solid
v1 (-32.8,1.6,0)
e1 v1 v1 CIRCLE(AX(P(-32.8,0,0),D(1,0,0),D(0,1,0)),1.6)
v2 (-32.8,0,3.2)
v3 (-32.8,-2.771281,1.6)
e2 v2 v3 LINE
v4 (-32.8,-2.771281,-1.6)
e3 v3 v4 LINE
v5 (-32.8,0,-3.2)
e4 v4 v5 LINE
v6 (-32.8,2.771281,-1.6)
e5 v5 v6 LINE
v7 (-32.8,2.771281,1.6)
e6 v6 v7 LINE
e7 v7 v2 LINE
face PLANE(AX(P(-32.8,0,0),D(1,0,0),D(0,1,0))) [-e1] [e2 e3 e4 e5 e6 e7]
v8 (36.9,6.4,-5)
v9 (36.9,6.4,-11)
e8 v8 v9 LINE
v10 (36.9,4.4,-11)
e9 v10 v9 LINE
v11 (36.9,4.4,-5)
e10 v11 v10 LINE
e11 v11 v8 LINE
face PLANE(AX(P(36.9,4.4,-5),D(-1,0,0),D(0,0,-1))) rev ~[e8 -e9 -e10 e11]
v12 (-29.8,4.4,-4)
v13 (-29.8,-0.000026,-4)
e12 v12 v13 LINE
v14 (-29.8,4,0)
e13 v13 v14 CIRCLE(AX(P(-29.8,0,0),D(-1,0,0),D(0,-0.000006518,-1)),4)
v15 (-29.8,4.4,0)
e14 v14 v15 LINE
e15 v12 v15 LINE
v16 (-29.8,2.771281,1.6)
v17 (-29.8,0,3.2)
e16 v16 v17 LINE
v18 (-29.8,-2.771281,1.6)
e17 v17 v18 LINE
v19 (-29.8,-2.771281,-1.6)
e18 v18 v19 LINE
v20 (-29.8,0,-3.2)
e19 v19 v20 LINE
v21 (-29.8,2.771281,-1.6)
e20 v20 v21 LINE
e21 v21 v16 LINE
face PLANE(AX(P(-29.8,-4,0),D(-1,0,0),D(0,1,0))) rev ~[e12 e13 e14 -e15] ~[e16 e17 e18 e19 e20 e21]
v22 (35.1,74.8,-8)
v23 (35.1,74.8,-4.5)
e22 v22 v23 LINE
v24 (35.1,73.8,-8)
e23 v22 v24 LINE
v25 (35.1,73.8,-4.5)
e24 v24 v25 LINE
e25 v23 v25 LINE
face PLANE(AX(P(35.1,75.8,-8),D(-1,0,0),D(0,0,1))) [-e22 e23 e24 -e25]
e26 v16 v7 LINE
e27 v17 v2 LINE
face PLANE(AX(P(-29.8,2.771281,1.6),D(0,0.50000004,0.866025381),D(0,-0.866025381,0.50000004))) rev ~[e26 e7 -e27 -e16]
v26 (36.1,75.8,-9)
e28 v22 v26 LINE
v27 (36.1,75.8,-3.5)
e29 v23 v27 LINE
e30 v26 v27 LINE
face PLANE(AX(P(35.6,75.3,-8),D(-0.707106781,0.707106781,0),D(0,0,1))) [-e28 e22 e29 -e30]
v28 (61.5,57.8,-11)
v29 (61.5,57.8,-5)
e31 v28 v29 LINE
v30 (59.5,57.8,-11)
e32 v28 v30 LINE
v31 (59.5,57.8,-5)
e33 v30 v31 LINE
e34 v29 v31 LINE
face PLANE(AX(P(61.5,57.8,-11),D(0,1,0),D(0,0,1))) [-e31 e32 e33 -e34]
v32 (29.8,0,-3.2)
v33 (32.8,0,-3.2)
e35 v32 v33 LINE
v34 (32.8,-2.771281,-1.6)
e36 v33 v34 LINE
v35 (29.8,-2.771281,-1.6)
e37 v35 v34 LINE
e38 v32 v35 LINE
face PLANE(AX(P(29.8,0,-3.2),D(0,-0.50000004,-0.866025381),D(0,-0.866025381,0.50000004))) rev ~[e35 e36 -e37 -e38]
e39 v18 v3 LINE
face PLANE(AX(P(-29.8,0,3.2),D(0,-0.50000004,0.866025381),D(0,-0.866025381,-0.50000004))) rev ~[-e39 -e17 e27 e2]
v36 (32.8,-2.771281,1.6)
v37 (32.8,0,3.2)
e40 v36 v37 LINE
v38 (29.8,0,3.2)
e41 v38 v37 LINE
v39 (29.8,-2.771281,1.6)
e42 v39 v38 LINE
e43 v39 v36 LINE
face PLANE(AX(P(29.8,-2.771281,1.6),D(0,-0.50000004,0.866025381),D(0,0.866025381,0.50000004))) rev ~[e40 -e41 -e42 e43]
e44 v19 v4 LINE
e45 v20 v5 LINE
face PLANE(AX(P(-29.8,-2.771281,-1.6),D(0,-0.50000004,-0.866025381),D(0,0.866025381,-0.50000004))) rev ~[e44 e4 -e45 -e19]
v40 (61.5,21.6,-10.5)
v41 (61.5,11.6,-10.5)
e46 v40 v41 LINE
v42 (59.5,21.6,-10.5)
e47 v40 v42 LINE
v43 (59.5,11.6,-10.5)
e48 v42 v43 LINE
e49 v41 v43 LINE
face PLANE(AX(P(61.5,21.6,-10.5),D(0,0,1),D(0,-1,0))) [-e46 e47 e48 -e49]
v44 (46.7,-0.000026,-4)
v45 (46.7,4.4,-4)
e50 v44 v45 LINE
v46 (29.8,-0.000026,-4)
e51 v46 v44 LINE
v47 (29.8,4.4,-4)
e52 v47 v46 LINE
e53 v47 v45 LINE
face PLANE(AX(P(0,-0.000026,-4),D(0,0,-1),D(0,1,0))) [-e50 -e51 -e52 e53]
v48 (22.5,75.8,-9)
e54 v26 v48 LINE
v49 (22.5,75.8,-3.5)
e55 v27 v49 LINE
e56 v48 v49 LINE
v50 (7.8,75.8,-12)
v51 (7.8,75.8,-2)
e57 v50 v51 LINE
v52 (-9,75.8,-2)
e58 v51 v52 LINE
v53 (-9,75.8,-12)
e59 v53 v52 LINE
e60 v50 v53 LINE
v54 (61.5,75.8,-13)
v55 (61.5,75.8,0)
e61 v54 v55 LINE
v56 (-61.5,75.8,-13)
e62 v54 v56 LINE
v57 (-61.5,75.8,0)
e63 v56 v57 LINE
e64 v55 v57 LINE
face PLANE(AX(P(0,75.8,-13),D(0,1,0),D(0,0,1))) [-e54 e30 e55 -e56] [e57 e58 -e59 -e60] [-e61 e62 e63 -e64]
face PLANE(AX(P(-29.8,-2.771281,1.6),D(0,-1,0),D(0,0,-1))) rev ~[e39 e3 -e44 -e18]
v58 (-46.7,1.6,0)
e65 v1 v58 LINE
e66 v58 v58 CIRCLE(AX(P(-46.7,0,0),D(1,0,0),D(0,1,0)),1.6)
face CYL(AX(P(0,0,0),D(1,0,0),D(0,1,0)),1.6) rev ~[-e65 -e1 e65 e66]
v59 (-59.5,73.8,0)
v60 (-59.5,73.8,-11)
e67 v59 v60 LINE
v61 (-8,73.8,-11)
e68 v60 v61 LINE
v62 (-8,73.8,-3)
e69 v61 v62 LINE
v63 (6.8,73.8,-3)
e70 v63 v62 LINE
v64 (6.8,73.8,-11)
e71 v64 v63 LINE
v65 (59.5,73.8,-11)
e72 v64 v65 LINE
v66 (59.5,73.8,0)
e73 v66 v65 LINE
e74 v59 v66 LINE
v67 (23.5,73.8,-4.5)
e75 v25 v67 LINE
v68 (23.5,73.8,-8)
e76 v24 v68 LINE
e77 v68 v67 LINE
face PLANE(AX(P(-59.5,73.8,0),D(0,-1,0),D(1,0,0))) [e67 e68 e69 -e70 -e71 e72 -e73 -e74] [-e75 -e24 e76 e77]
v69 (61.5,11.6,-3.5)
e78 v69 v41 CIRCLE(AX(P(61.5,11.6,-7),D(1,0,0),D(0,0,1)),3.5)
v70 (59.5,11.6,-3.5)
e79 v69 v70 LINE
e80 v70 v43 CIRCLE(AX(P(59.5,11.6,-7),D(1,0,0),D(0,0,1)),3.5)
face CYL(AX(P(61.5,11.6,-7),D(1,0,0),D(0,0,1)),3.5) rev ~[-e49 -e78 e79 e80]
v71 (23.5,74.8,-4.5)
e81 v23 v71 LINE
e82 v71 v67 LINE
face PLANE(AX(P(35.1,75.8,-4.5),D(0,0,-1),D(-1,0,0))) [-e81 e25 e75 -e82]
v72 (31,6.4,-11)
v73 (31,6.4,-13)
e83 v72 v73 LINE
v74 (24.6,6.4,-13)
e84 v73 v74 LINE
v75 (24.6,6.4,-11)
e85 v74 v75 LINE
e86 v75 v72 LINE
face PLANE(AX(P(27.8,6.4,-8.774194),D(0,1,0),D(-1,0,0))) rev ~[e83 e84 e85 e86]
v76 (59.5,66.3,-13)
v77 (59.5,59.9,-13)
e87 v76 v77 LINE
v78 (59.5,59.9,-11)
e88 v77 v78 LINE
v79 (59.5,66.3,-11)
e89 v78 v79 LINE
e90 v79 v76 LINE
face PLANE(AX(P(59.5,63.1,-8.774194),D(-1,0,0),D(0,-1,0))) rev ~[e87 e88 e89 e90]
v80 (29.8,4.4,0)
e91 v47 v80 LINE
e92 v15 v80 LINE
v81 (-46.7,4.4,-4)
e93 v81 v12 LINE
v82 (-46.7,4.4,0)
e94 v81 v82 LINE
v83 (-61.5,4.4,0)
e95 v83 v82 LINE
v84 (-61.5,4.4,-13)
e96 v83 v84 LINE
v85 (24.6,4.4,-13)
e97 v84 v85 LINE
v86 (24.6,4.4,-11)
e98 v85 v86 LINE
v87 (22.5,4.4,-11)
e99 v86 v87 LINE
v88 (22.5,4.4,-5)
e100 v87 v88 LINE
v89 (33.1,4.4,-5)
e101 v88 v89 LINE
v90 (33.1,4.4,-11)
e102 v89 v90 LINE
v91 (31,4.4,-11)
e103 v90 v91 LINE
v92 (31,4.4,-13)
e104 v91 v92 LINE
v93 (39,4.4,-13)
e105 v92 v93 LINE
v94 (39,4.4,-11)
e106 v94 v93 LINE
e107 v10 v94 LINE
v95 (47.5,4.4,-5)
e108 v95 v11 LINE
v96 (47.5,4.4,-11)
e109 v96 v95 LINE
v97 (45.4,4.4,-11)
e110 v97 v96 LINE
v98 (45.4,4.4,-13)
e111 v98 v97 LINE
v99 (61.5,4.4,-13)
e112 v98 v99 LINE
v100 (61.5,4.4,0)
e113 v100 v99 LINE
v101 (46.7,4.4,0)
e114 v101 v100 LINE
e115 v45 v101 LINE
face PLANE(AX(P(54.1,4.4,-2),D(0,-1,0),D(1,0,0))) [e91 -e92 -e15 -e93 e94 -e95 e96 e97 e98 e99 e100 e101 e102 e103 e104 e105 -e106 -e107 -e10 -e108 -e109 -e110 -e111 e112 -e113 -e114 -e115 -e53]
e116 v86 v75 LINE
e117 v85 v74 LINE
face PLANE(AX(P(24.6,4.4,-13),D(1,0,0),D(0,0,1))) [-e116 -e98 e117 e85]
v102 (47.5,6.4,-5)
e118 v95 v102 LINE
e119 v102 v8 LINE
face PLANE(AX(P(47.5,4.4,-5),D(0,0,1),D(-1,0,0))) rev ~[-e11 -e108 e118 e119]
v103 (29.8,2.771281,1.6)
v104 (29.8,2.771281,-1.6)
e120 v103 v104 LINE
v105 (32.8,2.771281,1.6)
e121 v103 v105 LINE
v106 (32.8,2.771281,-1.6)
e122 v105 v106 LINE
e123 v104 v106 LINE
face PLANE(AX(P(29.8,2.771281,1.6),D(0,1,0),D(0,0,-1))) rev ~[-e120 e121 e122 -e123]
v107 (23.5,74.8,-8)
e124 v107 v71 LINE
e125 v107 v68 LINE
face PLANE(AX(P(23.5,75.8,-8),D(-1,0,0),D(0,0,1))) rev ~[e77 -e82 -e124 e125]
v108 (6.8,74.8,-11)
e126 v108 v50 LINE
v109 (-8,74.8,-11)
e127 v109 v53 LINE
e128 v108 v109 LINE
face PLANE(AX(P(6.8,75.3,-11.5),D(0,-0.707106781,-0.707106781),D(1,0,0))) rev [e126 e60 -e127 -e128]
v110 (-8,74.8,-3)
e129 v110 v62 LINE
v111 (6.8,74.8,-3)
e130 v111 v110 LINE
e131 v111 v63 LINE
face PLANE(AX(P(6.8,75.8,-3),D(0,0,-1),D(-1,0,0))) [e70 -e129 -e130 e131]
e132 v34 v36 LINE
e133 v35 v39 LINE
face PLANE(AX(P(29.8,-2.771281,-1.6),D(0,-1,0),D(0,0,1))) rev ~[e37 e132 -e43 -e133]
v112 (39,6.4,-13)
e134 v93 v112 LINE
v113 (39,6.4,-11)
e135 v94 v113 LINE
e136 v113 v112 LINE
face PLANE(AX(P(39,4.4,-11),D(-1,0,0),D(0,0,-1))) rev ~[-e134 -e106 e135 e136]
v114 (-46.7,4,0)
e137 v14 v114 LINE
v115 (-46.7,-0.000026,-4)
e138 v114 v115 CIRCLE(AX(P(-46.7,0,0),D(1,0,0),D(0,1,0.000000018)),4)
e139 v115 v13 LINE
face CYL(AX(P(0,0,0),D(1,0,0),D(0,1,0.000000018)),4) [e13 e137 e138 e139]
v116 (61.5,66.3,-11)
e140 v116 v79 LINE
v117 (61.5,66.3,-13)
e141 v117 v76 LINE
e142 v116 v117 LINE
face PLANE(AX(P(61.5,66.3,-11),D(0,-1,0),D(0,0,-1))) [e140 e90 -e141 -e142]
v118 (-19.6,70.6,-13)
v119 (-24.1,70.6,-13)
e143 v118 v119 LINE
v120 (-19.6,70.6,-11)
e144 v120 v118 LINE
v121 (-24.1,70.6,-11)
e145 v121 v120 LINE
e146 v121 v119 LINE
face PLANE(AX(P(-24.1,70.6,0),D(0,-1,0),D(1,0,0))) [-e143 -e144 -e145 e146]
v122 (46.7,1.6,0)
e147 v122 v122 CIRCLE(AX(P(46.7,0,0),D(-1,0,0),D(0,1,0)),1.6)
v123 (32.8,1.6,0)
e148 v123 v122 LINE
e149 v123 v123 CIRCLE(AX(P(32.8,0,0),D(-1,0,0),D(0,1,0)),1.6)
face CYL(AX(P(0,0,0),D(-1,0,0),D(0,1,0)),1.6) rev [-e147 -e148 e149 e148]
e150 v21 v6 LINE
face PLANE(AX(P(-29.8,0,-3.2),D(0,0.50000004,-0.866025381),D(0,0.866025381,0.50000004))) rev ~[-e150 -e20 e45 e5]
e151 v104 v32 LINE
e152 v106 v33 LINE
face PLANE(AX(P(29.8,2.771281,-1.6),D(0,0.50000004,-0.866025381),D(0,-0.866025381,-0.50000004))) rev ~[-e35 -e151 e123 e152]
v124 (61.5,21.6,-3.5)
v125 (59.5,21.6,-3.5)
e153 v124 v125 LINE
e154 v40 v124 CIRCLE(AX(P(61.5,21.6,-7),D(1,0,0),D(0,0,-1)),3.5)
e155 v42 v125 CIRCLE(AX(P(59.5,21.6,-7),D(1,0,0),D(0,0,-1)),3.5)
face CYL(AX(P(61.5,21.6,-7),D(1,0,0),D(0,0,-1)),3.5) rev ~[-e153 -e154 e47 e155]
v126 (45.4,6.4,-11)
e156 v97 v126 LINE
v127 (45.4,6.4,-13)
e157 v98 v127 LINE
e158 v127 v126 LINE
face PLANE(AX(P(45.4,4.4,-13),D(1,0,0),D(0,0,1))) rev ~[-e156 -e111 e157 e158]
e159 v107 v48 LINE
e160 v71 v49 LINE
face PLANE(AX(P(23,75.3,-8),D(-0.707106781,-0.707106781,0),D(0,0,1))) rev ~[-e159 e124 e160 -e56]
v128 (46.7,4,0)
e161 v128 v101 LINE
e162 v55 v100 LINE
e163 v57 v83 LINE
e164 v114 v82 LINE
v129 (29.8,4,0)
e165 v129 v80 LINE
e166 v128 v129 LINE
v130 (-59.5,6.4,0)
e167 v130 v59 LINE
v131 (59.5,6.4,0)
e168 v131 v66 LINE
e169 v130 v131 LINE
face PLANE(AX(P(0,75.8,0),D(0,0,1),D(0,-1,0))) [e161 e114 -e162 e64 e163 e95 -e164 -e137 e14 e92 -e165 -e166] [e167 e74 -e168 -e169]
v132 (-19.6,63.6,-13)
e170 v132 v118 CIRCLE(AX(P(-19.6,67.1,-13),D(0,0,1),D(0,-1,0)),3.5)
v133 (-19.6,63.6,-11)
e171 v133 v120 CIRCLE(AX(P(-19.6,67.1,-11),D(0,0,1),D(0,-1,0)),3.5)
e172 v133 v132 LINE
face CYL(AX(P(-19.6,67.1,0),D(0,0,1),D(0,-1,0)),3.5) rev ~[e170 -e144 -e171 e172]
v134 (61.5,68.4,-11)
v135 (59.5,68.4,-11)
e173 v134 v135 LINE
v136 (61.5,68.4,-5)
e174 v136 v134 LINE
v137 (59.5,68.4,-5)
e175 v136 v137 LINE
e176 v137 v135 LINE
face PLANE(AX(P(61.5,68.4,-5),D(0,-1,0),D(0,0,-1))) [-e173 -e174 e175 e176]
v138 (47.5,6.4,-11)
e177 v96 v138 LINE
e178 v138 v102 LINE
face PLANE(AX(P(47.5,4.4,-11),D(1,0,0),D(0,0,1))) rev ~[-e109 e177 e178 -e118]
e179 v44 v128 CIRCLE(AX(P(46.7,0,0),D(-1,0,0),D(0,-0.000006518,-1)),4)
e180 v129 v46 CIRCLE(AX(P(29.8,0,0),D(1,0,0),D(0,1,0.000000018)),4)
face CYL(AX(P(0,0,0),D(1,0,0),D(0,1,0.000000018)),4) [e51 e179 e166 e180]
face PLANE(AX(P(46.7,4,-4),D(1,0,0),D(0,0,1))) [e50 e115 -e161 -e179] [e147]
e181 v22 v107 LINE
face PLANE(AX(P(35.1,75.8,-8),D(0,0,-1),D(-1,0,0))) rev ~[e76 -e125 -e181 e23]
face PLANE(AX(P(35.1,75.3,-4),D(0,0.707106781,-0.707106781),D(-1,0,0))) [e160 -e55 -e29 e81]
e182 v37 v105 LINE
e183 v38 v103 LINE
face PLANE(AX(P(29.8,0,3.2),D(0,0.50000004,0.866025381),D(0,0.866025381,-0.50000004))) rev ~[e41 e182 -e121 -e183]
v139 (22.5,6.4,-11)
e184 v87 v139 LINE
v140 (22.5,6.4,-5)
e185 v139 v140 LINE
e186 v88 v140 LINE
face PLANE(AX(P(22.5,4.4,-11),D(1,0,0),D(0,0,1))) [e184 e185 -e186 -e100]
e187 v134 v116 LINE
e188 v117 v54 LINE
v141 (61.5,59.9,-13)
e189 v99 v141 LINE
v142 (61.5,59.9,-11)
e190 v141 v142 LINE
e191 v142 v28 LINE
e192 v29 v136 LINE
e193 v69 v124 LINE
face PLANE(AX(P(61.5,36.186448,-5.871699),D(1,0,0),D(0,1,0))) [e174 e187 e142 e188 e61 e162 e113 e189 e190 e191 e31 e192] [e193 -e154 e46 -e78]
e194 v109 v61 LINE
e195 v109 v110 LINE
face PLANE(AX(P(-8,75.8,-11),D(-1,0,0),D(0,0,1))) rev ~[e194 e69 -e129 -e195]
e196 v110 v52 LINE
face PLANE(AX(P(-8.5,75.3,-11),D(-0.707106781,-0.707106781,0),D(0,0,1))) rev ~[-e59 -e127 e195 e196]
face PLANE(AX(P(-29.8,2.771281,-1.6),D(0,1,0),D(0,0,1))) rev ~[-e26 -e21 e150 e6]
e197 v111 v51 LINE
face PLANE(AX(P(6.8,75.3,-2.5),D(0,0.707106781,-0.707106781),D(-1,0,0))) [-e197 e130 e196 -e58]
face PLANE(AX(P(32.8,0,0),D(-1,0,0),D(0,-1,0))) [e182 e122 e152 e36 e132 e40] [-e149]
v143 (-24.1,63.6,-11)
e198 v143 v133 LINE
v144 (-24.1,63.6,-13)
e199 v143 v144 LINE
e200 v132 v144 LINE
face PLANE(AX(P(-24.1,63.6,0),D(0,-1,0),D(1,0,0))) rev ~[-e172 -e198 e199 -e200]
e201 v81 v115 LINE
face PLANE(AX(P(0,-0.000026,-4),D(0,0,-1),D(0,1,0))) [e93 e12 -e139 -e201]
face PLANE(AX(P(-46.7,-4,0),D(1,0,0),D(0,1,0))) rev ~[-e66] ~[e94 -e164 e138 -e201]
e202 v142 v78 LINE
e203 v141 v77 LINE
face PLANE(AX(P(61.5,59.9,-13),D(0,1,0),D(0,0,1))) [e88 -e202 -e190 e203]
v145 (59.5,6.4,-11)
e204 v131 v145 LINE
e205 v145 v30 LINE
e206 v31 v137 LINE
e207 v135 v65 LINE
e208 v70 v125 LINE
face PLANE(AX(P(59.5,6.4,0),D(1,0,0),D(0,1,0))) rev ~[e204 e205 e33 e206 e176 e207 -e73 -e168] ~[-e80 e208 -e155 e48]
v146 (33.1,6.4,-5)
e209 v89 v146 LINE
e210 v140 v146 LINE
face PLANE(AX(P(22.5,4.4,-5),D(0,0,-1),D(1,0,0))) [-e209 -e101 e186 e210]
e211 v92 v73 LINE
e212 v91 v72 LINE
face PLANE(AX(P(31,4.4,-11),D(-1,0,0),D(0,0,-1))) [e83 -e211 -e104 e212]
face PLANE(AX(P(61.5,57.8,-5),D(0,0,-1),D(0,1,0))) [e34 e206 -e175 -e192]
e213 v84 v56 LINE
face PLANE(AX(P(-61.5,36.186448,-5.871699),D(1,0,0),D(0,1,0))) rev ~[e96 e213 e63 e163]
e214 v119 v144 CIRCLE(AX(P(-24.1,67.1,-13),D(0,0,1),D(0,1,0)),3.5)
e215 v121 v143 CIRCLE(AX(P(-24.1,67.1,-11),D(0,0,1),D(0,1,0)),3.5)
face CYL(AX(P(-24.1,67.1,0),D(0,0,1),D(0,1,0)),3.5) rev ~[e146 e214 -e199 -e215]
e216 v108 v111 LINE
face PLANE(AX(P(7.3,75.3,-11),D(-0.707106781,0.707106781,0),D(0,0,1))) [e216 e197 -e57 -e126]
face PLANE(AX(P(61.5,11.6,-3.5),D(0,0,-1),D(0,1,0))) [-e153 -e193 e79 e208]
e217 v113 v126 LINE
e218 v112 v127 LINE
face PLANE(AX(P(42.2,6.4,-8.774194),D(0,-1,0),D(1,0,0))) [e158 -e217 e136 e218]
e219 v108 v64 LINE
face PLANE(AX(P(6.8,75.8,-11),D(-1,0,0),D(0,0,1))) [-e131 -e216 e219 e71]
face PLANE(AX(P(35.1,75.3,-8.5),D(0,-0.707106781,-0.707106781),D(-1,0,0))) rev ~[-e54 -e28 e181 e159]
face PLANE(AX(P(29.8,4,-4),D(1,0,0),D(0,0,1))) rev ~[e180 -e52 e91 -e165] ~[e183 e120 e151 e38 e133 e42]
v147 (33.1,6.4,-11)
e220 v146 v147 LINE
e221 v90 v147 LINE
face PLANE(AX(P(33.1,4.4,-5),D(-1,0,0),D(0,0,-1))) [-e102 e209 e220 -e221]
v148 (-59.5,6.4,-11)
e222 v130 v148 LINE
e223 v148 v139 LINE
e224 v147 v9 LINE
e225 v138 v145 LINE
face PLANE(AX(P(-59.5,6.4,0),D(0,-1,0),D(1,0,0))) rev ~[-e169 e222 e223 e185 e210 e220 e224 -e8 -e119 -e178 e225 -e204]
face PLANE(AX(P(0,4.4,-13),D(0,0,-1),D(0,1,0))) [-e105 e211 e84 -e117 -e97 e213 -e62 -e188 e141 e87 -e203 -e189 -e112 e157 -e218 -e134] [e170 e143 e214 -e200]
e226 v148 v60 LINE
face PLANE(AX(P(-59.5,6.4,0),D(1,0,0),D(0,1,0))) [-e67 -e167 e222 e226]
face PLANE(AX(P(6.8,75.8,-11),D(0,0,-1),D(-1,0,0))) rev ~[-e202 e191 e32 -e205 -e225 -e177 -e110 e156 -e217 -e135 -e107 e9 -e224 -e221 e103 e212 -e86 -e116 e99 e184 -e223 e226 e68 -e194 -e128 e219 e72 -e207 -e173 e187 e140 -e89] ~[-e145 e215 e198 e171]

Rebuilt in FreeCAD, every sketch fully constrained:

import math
import FreeCAD as App
import Part
import Sketcher

V = App.Vector
Q = App.Units.Quantity


def edges_at(feature, points):
    """Names of the edges that pass closest to the given points."""
    edges = feature.Shape.Edges
    near = lambda p: min(range(len(edges)), key=lambda i: edges[i].distToShape(Part.Vertex(*p))[0])
    return sorted({f"Edge{near(p) + 1}" for p in points})

doc = App.newDocument("Part")
body = doc.addObject("PartDesign::Body", "Body")

# Sketch on YZ plane
sketch1 = doc.addObject("Sketcher::SketchObject", "Sketch")
body.addObject(sketch1)
sketch1.AttachmentSupport = (doc.YZ_Plane, [""])
sketch1.MapMode = "FlatFace"
sketch1.addGeometry(Part.ArcOfCircle(Part.Circle(V(0, 0, 0), V(0, 0, 1), 4), math.radians(0.000001), math.radians(269.999627)), False)
sketch1.addGeometry(Part.LineSegment(V(-0.000026, -4, 0), V(4.4, -4, 0)), False)
sketch1.addGeometry(Part.LineSegment(V(4.4, -4, 0), V(4.4, -13, 0)), False)
sketch1.addGeometry(Part.LineSegment(V(4.4, -13, 0), V(75.8, -13, 0)), False)
sketch1.addGeometry(Part.LineSegment(V(75.8, -13, 0), V(75.8, 0, 0)), False)
sketch1.addGeometry(Part.LineSegment(V(75.8, 0, 0), V(4, 0, 0)), False)
sketch1.addGeometry(Part.Circle(V(0, 0, 0), V(0, 0, 1), 1.6), False)
sketch1.addConstraint(Sketcher.Constraint("Coincident", 0, 2, 1, 1))
sketch1.addConstraint(Sketcher.Constraint("Coincident", 1, 2, 2, 1))
sketch1.addConstraint(Sketcher.Constraint("Coincident", 2, 2, 3, 1))
sketch1.addConstraint(Sketcher.Constraint("Coincident", 3, 2, 4, 1))
sketch1.addConstraint(Sketcher.Constraint("Coincident", 4, 2, 5, 1))
sketch1.addConstraint(Sketcher.Constraint("Coincident", 5, 2, 0, 1))
sketch1.addConstraint(Sketcher.Constraint("Horizontal", 1))
sketch1.addConstraint(Sketcher.Constraint("Vertical", 2))
sketch1.addConstraint(Sketcher.Constraint("Horizontal", 3))
sketch1.addConstraint(Sketcher.Constraint("Vertical", 4))
sketch1.addConstraint(Sketcher.Constraint("Horizontal", 5))
sketch1.addConstraint(Sketcher.Constraint("Coincident", 0, 3, -1, 1))
sketch1.addConstraint(Sketcher.Constraint("Coincident", 6, 3, -1, 1))
sketch1.addConstraint(Sketcher.Constraint("PointOnObject", 4, 2, -1))
sketch1.addConstraint(Sketcher.Constraint("Radius", 0, 4.0))
sketch1.addConstraint(Sketcher.Constraint("Diameter", 6, 3.2))
sketch1.addConstraint(Sketcher.Constraint("DistanceY", 2, 2, 2, 1, 9.0))
sketch1.addConstraint(Sketcher.Constraint("DistanceX", 3, 1, 3, 2, 71.4))
sketch1.addConstraint(Sketcher.Constraint("DistanceX", 5, 2, 5, 1, 71.8))
sketch1.addConstraint(Sketcher.Constraint("DistanceX", 1, 1, 1, 2, 4.400026))
pad1 = doc.addObject("PartDesign::Pad", "Pad")
body.addObject(pad1)
pad1.Profile = sketch1
pad1.Type = "TwoLengths"
pad1.Length = 61.5
pad1.Length2 = 61.5

# Sketch on XY plane
sketch2 = doc.addObject("Sketcher::SketchObject", "Sketch001")
body.addObject(sketch2)
sketch2.AttachmentSupport = (doc.XY_Plane, [""])
sketch2.MapMode = "FlatFace"
sketch2.addGeometry(Part.LineSegment(V(-61.5, 4, 0), V(-61.5, -4, 0)), False)
sketch2.addGeometry(Part.LineSegment(V(-61.5, -4, 0), V(-46.7, -4, 0)), False)
sketch2.addGeometry(Part.LineSegment(V(-46.7, -4, 0), V(-46.7, 4, 0)), False)
sketch2.addGeometry(Part.LineSegment(V(-46.7, 4, 0), V(-61.5, 4, 0)), False)
sketch2.addGeometry(Part.LineSegment(V(-29.8, 4, 0), V(-29.8, -4, 0)), False)
sketch2.addGeometry(Part.LineSegment(V(-29.8, -4, 0), V(29.8, -4, 0)), False)
sketch2.addGeometry(Part.LineSegment(V(29.8, -4, 0), V(29.8, 4, 0)), False)
sketch2.addGeometry(Part.LineSegment(V(29.8, 4, 0), V(-29.8, 4, 0)), False)
sketch2.addGeometry(Part.LineSegment(V(46.7, 4, 0), V(46.7, -4, 0)), False)
sketch2.addGeometry(Part.LineSegment(V(46.7, -4, 0), V(61.5, -4, 0)), False)
sketch2.addGeometry(Part.LineSegment(V(61.5, -4, 0), V(61.5, 4, 0)), False)
sketch2.addGeometry(Part.LineSegment(V(61.5, 4, 0), V(46.7, 4, 0)), False)
sketch2.addConstraint(Sketcher.Constraint("Coincident", 0, 2, 1, 1))
sketch2.addConstraint(Sketcher.Constraint("Coincident", 1, 2, 2, 1))
sketch2.addConstraint(Sketcher.Constraint("Coincident", 2, 2, 3, 1))
sketch2.addConstraint(Sketcher.Constraint("Coincident", 3, 2, 0, 1))
sketch2.addConstraint(Sketcher.Constraint("Coincident", 4, 2, 5, 1))
sketch2.addConstraint(Sketcher.Constraint("Coincident", 5, 2, 6, 1))
sketch2.addConstraint(Sketcher.Constraint("Coincident", 6, 2, 7, 1))
sketch2.addConstraint(Sketcher.Constraint("Coincident", 7, 2, 4, 1))
sketch2.addConstraint(Sketcher.Constraint("Coincident", 8, 2, 9, 1))
sketch2.addConstraint(Sketcher.Constraint("Coincident", 9, 2, 10, 1))
sketch2.addConstraint(Sketcher.Constraint("Coincident", 10, 2, 11, 1))
sketch2.addConstraint(Sketcher.Constraint("Coincident", 11, 2, 8, 1))
sketch2.addConstraint(Sketcher.Constraint("Vertical", 0))
sketch2.addConstraint(Sketcher.Constraint("Horizontal", 1))
sketch2.addConstraint(Sketcher.Constraint("Vertical", 2))
sketch2.addConstraint(Sketcher.Constraint("Horizontal", 3))
sketch2.addConstraint(Sketcher.Constraint("Vertical", 4))
sketch2.addConstraint(Sketcher.Constraint("Horizontal", 5))
sketch2.addConstraint(Sketcher.Constraint("Vertical", 6))
sketch2.addConstraint(Sketcher.Constraint("Horizontal", 7))
sketch2.addConstraint(Sketcher.Constraint("Vertical", 8))
sketch2.addConstraint(Sketcher.Constraint("Horizontal", 9))
sketch2.addConstraint(Sketcher.Constraint("Vertical", 10))
sketch2.addConstraint(Sketcher.Constraint("Horizontal", 11))
sketch2.addConstraint(Sketcher.Constraint("Symmetric", 4, 2, 6, 2, -1, 1))
sketch2.addConstraint(Sketcher.Constraint("Symmetric", 2, 2, 8, 2, -1, 1))
sketch2.addConstraint(Sketcher.Constraint("Symmetric", 0, 2, 10, 2, -1, 1))
sketch2.addConstraint(Sketcher.Constraint("Horizontal", 1, 2, 4, 2))
sketch2.addConstraint(Sketcher.Constraint("Horizontal", 3, 2, 6, 2))
sketch2.addConstraint(Sketcher.Constraint("DistanceY", 0, 2, 0, 1, 8.0))
sketch2.addConstraint(Sketcher.Constraint("DistanceX", 1, 1, 1, 2, 14.8))
sketch2.addConstraint(Sketcher.Constraint("DistanceX", 5, 1, 5, 2, 59.6))
sketch2.addConstraint(Sketcher.Constraint("DistanceX", 0, 2, -1, 1, 61.5))
pocket1 = doc.addObject("PartDesign::Pocket", "Pocket")
body.addObject(pocket1)
pocket1.Profile = sketch2
pocket1.Type = "ThroughAll"
pocket1.Midplane = True

# Sketch on XY plane
sketch3 = doc.addObject("Sketcher::SketchObject", "Sketch002")
body.addObject(sketch3)
sketch3.AttachmentSupport = (doc.XY_Plane, [""])
sketch3.MapMode = "FlatFace"
sketch3.addGeometry(Part.LineSegment(V(-59.5, 73.8, 0), V(-59.5, 6.4, 0)), False)
sketch3.addGeometry(Part.LineSegment(V(-59.5, 6.4, 0), V(59.5, 6.4, 0)), False)
sketch3.addGeometry(Part.LineSegment(V(59.5, 6.4, 0), V(59.5, 73.8, 0)), False)
sketch3.addGeometry(Part.LineSegment(V(59.5, 73.8, 0), V(-59.5, 73.8, 0)), False)
sketch3.addConstraint(Sketcher.Constraint("Coincident", 0, 2, 1, 1))
sketch3.addConstraint(Sketcher.Constraint("Coincident", 1, 2, 2, 1))
sketch3.addConstraint(Sketcher.Constraint("Coincident", 2, 2, 3, 1))
sketch3.addConstraint(Sketcher.Constraint("Coincident", 3, 2, 0, 1))
sketch3.addConstraint(Sketcher.Constraint("Vertical", 0))
sketch3.addConstraint(Sketcher.Constraint("Horizontal", 1))
sketch3.addConstraint(Sketcher.Constraint("Vertical", 2))
sketch3.addConstraint(Sketcher.Constraint("Horizontal", 3))
sketch3.addConstraint(Sketcher.Constraint("DistanceX", 1, 1, 1, 2, 119.0))
sketch3.addConstraint(Sketcher.Constraint("DistanceY", 0, 2, 0, 1, 67.4))
sketch3.addConstraint(Sketcher.Constraint("DistanceX", 0, 2, -1, 1, 59.5))
sketch3.addConstraint(Sketcher.Constraint("DistanceY", -1, 1, 0, 2, 6.4))
pocket2 = doc.addObject("PartDesign::Pocket", "Pocket001")
body.addObject(pocket2)
pocket2.Profile = sketch3
pocket2.Length = 11

# Sketch on XY plane
sketch4 = doc.addObject("Sketcher::SketchObject", "Sketch003")
body.addObject(sketch4)
sketch4.AttachmentSupport = (doc.XY_Plane, [""])
sketch4.MapMode = "FlatFace"
sketch4.addGeometry(Part.ArcOfCircle(Part.Circle(V(-24.1, 67.1, 0), V(0, 0, 1), 3.5), math.radians(90), math.radians(270)), False)
sketch4.addGeometry(Part.LineSegment(V(-24.1, 63.6, 0), V(-19.6, 63.6, 0)), False)
sketch4.addGeometry(Part.ArcOfCircle(Part.Circle(V(-19.6, 67.1, 0), V(0, 0, 1), 3.5), math.radians(-90), math.radians(90)), False)
sketch4.addGeometry(Part.LineSegment(V(-19.6, 70.6, 0), V(-24.1, 70.6, 0)), False)
sketch4.addConstraint(Sketcher.Constraint("Tangent", 0, 2, 1, 1))
sketch4.addConstraint(Sketcher.Constraint("Tangent", 1, 2, 2, 1))
sketch4.addConstraint(Sketcher.Constraint("Tangent", 2, 2, 3, 1))
sketch4.addConstraint(Sketcher.Constraint("Tangent", 3, 2, 0, 1))
sketch4.addConstraint(Sketcher.Constraint("Horizontal", 1))
sketch4.addConstraint(Sketcher.Constraint("Horizontal", 3))
sketch4.addConstraint(Sketcher.Constraint("Radius", 0, 3.5))
sketch4.addConstraint(Sketcher.Constraint("DistanceX", 1, 1, 1, 2, 4.5))
sketch4.addConstraint(Sketcher.Constraint("DistanceX", 0, 3, -1, 1, 24.1))
sketch4.addConstraint(Sketcher.Constraint("DistanceY", -1, 1, 0, 3, 67.1))
pocket3 = doc.addObject("PartDesign::Pocket", "Pocket002")
body.addObject(pocket3)
pocket3.Profile = sketch4
pocket3.Type = "ThroughAll"

# Sketch on XZ plane
sketch5 = doc.addObject("Sketcher::SketchObject", "Sketch004")
body.addObject(sketch5)
sketch5.AttachmentSupport = (doc.XZ_Plane, [""])
sketch5.MapMode = "FlatFace"
sketch5.AttachmentOffset = App.Placement(V(0, 0, -75.8), App.Rotation())
sketch5.addGeometry(Part.LineSegment(V(35.1, -4.5, 0), V(35.1, -8, 0)), False)
sketch5.addGeometry(Part.LineSegment(V(35.1, -8, 0), V(23.5, -8, 0)), False)
sketch5.addGeometry(Part.LineSegment(V(23.5, -8, 0), V(23.5, -4.5, 0)), False)
sketch5.addGeometry(Part.LineSegment(V(23.5, -4.5, 0), V(35.1, -4.5, 0)), False)
sketch5.addGeometry(Part.LineSegment(V(6.8, -3, 0), V(6.8, -11, 0)), False)
sketch5.addGeometry(Part.LineSegment(V(6.8, -11, 0), V(-8, -11, 0)), False)
sketch5.addGeometry(Part.LineSegment(V(-8, -11, 0), V(-8, -3, 0)), False)
sketch5.addGeometry(Part.LineSegment(V(-8, -3, 0), V(6.8, -3, 0)), False)
sketch5.addConstraint(Sketcher.Constraint("Coincident", 0, 2, 1, 1))
sketch5.addConstraint(Sketcher.Constraint("Coincident", 1, 2, 2, 1))
sketch5.addConstraint(Sketcher.Constraint("Coincident", 2, 2, 3, 1))
sketch5.addConstraint(Sketcher.Constraint("Coincident", 3, 2, 0, 1))
sketch5.addConstraint(Sketcher.Constraint("Coincident", 4, 2, 5, 1))
sketch5.addConstraint(Sketcher.Constraint("Coincident", 5, 2, 6, 1))
sketch5.addConstraint(Sketcher.Constraint("Coincident", 6, 2, 7, 1))
sketch5.addConstraint(Sketcher.Constraint("Coincident", 7, 2, 4, 1))
sketch5.addConstraint(Sketcher.Constraint("Vertical", 0))
sketch5.addConstraint(Sketcher.Constraint("Horizontal", 1))
sketch5.addConstraint(Sketcher.Constraint("Vertical", 2))
sketch5.addConstraint(Sketcher.Constraint("Horizontal", 3))
sketch5.addConstraint(Sketcher.Constraint("Vertical", 4))
sketch5.addConstraint(Sketcher.Constraint("Horizontal", 5))
sketch5.addConstraint(Sketcher.Constraint("Vertical", 6))
sketch5.addConstraint(Sketcher.Constraint("Horizontal", 7))
sketch5.addConstraint(Sketcher.Constraint("DistanceY", 4, 2, 4, 1, 8.0))
sketch5.addConstraint(Sketcher.Constraint("DistanceX", 1, 2, 1, 1, 11.6))
sketch5.addConstraint(Sketcher.Constraint("DistanceX", 5, 2, 5, 1, 14.8))
sketch5.addConstraint(Sketcher.Constraint("DistanceY", 0, 2, 0, 1, 3.5))
sketch5.addConstraint(Sketcher.Constraint("DistanceY", 0, 2, -1, 1, 8.0))
sketch5.addConstraint(Sketcher.Constraint("DistanceY", 4, 2, -1, 1, 11.0))
sketch5.addConstraint(Sketcher.Constraint("DistanceX", 5, 2, -1, 1, 8.0))
sketch5.addConstraint(Sketcher.Constraint("DistanceX", -1, 1, 0, 2, 35.1))
pocket4 = doc.addObject("PartDesign::Pocket", "Pocket003")
body.addObject(pocket4)
pocket4.Profile = sketch5
pocket4.Length = 2
pocket4.Reversed = True

# Sketch on XZ plane
sketch6 = doc.addObject("Sketcher::SketchObject", "Sketch005")
body.addObject(sketch6)
sketch6.AttachmentSupport = (doc.XZ_Plane, [""])
sketch6.MapMode = "FlatFace"
sketch6.AttachmentOffset = App.Placement(V(0, 0, -4.4), App.Rotation())
sketch6.addGeometry(Part.LineSegment(V(33.1, -5, 0), V(22.5, -5, 0)), False)
sketch6.addGeometry(Part.LineSegment(V(22.5, -5, 0), V(22.5, -11, 0)), False)
sketch6.addGeometry(Part.LineSegment(V(22.5, -11, 0), V(24.6, -11, 0)), False)
sketch6.addGeometry(Part.LineSegment(V(24.6, -11, 0), V(24.6, -13, 0)), False)
sketch6.addGeometry(Part.LineSegment(V(24.6, -13, 0), V(31, -13, 0)), False)
sketch6.addGeometry(Part.LineSegment(V(31, -13, 0), V(31, -11, 0)), False)
sketch6.addGeometry(Part.LineSegment(V(31, -11, 0), V(33.1, -11, 0)), False)
sketch6.addGeometry(Part.LineSegment(V(33.1, -11, 0), V(33.1, -5, 0)), False)
sketch6.addGeometry(Part.LineSegment(V(36.9, -5, 0), V(36.9, -11, 0)), False)
sketch6.addGeometry(Part.LineSegment(V(36.9, -11, 0), V(39, -11, 0)), False)
sketch6.addGeometry(Part.LineSegment(V(39, -11, 0), V(39, -13, 0)), False)
sketch6.addGeometry(Part.LineSegment(V(39, -13, 0), V(45.4, -13, 0)), False)
sketch6.addGeometry(Part.LineSegment(V(45.4, -13, 0), V(45.4, -11, 0)), False)
sketch6.addGeometry(Part.LineSegment(V(45.4, -11, 0), V(47.5, -11, 0)), False)
sketch6.addGeometry(Part.LineSegment(V(47.5, -11, 0), V(47.5, -5, 0)), False)
sketch6.addGeometry(Part.LineSegment(V(47.5, -5, 0), V(36.9, -5, 0)), False)
sketch6.addConstraint(Sketcher.Constraint("Coincident", 0, 2, 1, 1))
sketch6.addConstraint(Sketcher.Constraint("Coincident", 1, 2, 2, 1))
sketch6.addConstraint(Sketcher.Constraint("Coincident", 2, 2, 3, 1))
sketch6.addConstraint(Sketcher.Constraint("Coincident", 3, 2, 4, 1))
sketch6.addConstraint(Sketcher.Constraint("Coincident", 4, 2, 5, 1))
sketch6.addConstraint(Sketcher.Constraint("Coincident", 5, 2, 6, 1))
sketch6.addConstraint(Sketcher.Constraint("Coincident", 6, 2, 7, 1))
sketch6.addConstraint(Sketcher.Constraint("Coincident", 7, 2, 0, 1))
sketch6.addConstraint(Sketcher.Constraint("Coincident", 8, 2, 9, 1))
sketch6.addConstraint(Sketcher.Constraint("Coincident", 9, 2, 10, 1))
sketch6.addConstraint(Sketcher.Constraint("Coincident", 10, 2, 11, 1))
sketch6.addConstraint(Sketcher.Constraint("Coincident", 11, 2, 12, 1))
sketch6.addConstraint(Sketcher.Constraint("Coincident", 12, 2, 13, 1))
sketch6.addConstraint(Sketcher.Constraint("Coincident", 13, 2, 14, 1))
sketch6.addConstraint(Sketcher.Constraint("Coincident", 14, 2, 15, 1))
sketch6.addConstraint(Sketcher.Constraint("Coincident", 15, 2, 8, 1))
sketch6.addConstraint(Sketcher.Constraint("Horizontal", 0))
sketch6.addConstraint(Sketcher.Constraint("Vertical", 1))
sketch6.addConstraint(Sketcher.Constraint("Horizontal", 2))
sketch6.addConstraint(Sketcher.Constraint("Vertical", 3))
sketch6.addConstraint(Sketcher.Constraint("Horizontal", 4))
sketch6.addConstraint(Sketcher.Constraint("Vertical", 5))
sketch6.addConstraint(Sketcher.Constraint("Horizontal", 6))
sketch6.addConstraint(Sketcher.Constraint("Vertical", 7))
sketch6.addConstraint(Sketcher.Constraint("Vertical", 8))
sketch6.addConstraint(Sketcher.Constraint("Horizontal", 9))
sketch6.addConstraint(Sketcher.Constraint("Vertical", 10))
sketch6.addConstraint(Sketcher.Constraint("Horizontal", 11))
sketch6.addConstraint(Sketcher.Constraint("Vertical", 12))
sketch6.addConstraint(Sketcher.Constraint("Horizontal", 13))
sketch6.addConstraint(Sketcher.Constraint("Vertical", 14))
sketch6.addConstraint(Sketcher.Constraint("Horizontal", 15))
sketch6.addConstraint(Sketcher.Constraint("Horizontal", 2, 2, 5, 2))
sketch6.addConstraint(Sketcher.Constraint("Horizontal", 6, 2, 8, 2))
sketch6.addConstraint(Sketcher.Constraint("Horizontal", 4, 2, 10, 2))
sketch6.addConstraint(Sketcher.Constraint("Horizontal", 9, 2, 12, 2))
sketch6.addConstraint(Sketcher.Constraint("Horizontal", 7, 2, 14, 2))
sketch6.addConstraint(Sketcher.Constraint("Equal", 2, 6))
sketch6.addConstraint(Sketcher.Constraint("Equal", 6, 9))
sketch6.addConstraint(Sketcher.Constraint("Equal", 4, 11))
sketch6.addConstraint(Sketcher.Constraint("Equal", 9, 13))
sketch6.addConstraint(Sketcher.Constraint("DistanceY", 1, 2, 1, 1, 6.0))
sketch6.addConstraint(Sketcher.Constraint("DistanceY", 3, 2, 3, 1, 2.0))
sketch6.addConstraint(Sketcher.Constraint("DistanceX", 0, 2, 0, 1, 10.6))
sketch6.addConstraint(Sketcher.Constraint("DistanceX", 2, 1, 2, 2, 2.1))
sketch6.addConstraint(Sketcher.Constraint("DistanceY", 0, 2, -1, 1, 5.0))
sketch6.addConstraint(Sketcher.Constraint("DistanceX", -1, 1, 4, 2, 31.0))
sketch6.addConstraint(Sketcher.Constraint("DistanceX", -1, 1, 9, 2, 39.0))
pocket5 = doc.addObject("PartDesign::Pocket", "Pocket004")
body.addObject(pocket5)
pocket5.Profile = sketch6
pocket5.Length = 2

# Sketch on YZ plane
sketch7 = doc.addObject("Sketcher::SketchObject", "Sketch006")
body.addObject(sketch7)
sketch7.AttachmentSupport = (doc.YZ_Plane, [""])
sketch7.MapMode = "FlatFace"
sketch7.AttachmentOffset = App.Placement(V(0, 0, 61.5), App.Rotation())
sketch7.addGeometry(Part.LineSegment(V(68.4, -5, 0), V(57.8, -5, 0)), False)
sketch7.addGeometry(Part.LineSegment(V(57.8, -5, 0), V(57.8, -11, 0)), False)
sketch7.addGeometry(Part.LineSegment(V(57.8, -11, 0), V(59.9, -11, 0)), False)
sketch7.addGeometry(Part.LineSegment(V(59.9, -11, 0), V(59.9, -13, 0)), False)
sketch7.addGeometry(Part.LineSegment(V(59.9, -13, 0), V(66.3, -13, 0)), False)
sketch7.addGeometry(Part.LineSegment(V(66.3, -13, 0), V(66.3, -11, 0)), False)
sketch7.addGeometry(Part.LineSegment(V(66.3, -11, 0), V(68.4, -11, 0)), False)
sketch7.addGeometry(Part.LineSegment(V(68.4, -11, 0), V(68.4, -5, 0)), False)
sketch7.addGeometry(Part.LineSegment(V(21.6, -3.5, 0), V(11.6, -3.5, 0)), False)
sketch7.addGeometry(Part.ArcOfCircle(Part.Circle(V(11.6, -7, 0), V(0, 0, 1), 3.5), math.radians(90), math.radians(270)), False)
sketch7.addGeometry(Part.LineSegment(V(11.6, -10.5, 0), V(21.6, -10.5, 0)), False)
sketch7.addGeometry(Part.ArcOfCircle(Part.Circle(V(21.6, -7, 0), V(0, 0, 1), 3.5), math.radians(-90), math.radians(90)), False)
sketch7.addConstraint(Sketcher.Constraint("Coincident", 0, 2, 1, 1))
sketch7.addConstraint(Sketcher.Constraint("Coincident", 1, 2, 2, 1))
sketch7.addConstraint(Sketcher.Constraint("Coincident", 2, 2, 3, 1))
sketch7.addConstraint(Sketcher.Constraint("Coincident", 3, 2, 4, 1))
sketch7.addConstraint(Sketcher.Constraint("Coincident", 4, 2, 5, 1))
sketch7.addConstraint(Sketcher.Constraint("Coincident", 5, 2, 6, 1))
sketch7.addConstraint(Sketcher.Constraint("Coincident", 6, 2, 7, 1))
sketch7.addConstraint(Sketcher.Constraint("Coincident", 7, 2, 0, 1))
sketch7.addConstraint(Sketcher.Constraint("Tangent", 8, 2, 9, 1))
sketch7.addConstraint(Sketcher.Constraint("Tangent", 9, 2, 10, 1))
sketch7.addConstraint(Sketcher.Constraint("Tangent", 10, 2, 11, 1))
sketch7.addConstraint(Sketcher.Constraint("Tangent", 11, 2, 8, 1))
sketch7.addConstraint(Sketcher.Constraint("Horizontal", 0))
sketch7.addConstraint(Sketcher.Constraint("Vertical", 1))
sketch7.addConstraint(Sketcher.Constraint("Horizontal", 2))
sketch7.addConstraint(Sketcher.Constraint("Vertical", 3))
sketch7.addConstraint(Sketcher.Constraint("Horizontal", 4))
sketch7.addConstraint(Sketcher.Constraint("Vertical", 5))
sketch7.addConstraint(Sketcher.Constraint("Horizontal", 6))
sketch7.addConstraint(Sketcher.Constraint("Vertical", 7))
sketch7.addConstraint(Sketcher.Constraint("Horizontal", 8))
sketch7.addConstraint(Sketcher.Constraint("Horizontal", 10))
sketch7.addConstraint(Sketcher.Constraint("Horizontal", 2, 2, 5, 2))
sketch7.addConstraint(Sketcher.Constraint("Equal", 2, 6))
sketch7.addConstraint(Sketcher.Constraint("Radius", 9, 3.5))
sketch7.addConstraint(Sketcher.Constraint("DistanceX", 8, 2, 8, 1, 10.0))
sketch7.addConstraint(Sketcher.Constraint("DistanceY", 1, 2, 1, 1, 6.0))
sketch7.addConstraint(Sketcher.Constraint("DistanceY", 3, 2, 3, 1, 2.0))
sketch7.addConstraint(Sketcher.Constraint("DistanceX", 0, 2, 0, 1, 10.6))
sketch7.addConstraint(Sketcher.Constraint("DistanceX", 2, 1, 2, 2, 2.1))
sketch7.addConstraint(Sketcher.Constraint("DistanceY", 9, 3, -1, 1, 7.0))
sketch7.addConstraint(Sketcher.Constraint("DistanceY", 0, 2, -1, 1, 5.0))
sketch7.addConstraint(Sketcher.Constraint("DistanceX", -1, 1, 9, 3, 11.6))
sketch7.addConstraint(Sketcher.Constraint("DistanceX", -1, 1, 0, 2, 57.8))
pocket6 = doc.addObject("PartDesign::Pocket", "Pocket005")
body.addObject(pocket6)
pocket6.Profile = sketch7
pocket6.Length = 2

# Sketch on YZ plane
sketch8 = doc.addObject("Sketcher::SketchObject", "Sketch007")
body.addObject(sketch8)
sketch8.AttachmentSupport = (doc.YZ_Plane, [""])
sketch8.MapMode = "FlatFace"
sketch8.AttachmentOffset = App.Placement(V(0, 0, 29.8), App.Rotation())
sketch8.addGeometry(Part.LineSegment(V(-2.771281, 1.6, 0), V(0, 3.2, 0)), False)
sketch8.addGeometry(Part.LineSegment(V(0, 3.2, 0), V(2.771281, 1.6, 0)), False)
sketch8.addGeometry(Part.LineSegment(V(2.771281, 1.6, 0), V(2.771281, -1.6, 0)), False)
sketch8.addGeometry(Part.LineSegment(V(2.771281, -1.6, 0), V(0, -3.2, 0)), False)
sketch8.addGeometry(Part.LineSegment(V(0, -3.2, 0), V(-2.771281, -1.6, 0)), False)
sketch8.addGeometry(Part.LineSegment(V(-2.771281, -1.6, 0), V(-2.771281, 1.6, 0)), False)
sketch8.addConstraint(Sketcher.Constraint("Coincident", 0, 2, 1, 1))
sketch8.addConstraint(Sketcher.Constraint("Coincident", 1, 2, 2, 1))
sketch8.addConstraint(Sketcher.Constraint("Coincident", 2, 2, 3, 1))
sketch8.addConstraint(Sketcher.Constraint("Coincident", 3, 2, 4, 1))
sketch8.addConstraint(Sketcher.Constraint("Coincident", 4, 2, 5, 1))
sketch8.addConstraint(Sketcher.Constraint("Coincident", 5, 2, 0, 1))
sketch8.addConstraint(Sketcher.Constraint("Vertical", 2))
sketch8.addConstraint(Sketcher.Constraint("Vertical", 5))
sketch8.addConstraint(Sketcher.Constraint("Symmetric", 0, 2, 3, 2, -1, 1))
sketch8.addConstraint(Sketcher.Constraint("Symmetric", 1, 2, 4, 2, -1, 1))
sketch8.addConstraint(Sketcher.Constraint("PointOnObject", 0, 2, -2))
sketch8.addConstraint(Sketcher.Constraint("Parallel", 0, 3))
sketch8.addConstraint(Sketcher.Constraint("Horizontal", 2, 2, 4, 2))
sketch8.addConstraint(Sketcher.Constraint("Angle", 0, Q("30.000003 deg")))
sketch8.addConstraint(Sketcher.Constraint("DistanceY", 2, 2, 2, 1, 3.2))
sketch8.addConstraint(Sketcher.Constraint("Distance", 0, 3.2))
pocket7 = doc.addObject("PartDesign::Pocket", "Pocket006")
body.addObject(pocket7)
pocket7.Profile = sketch8
pocket7.Length = 3
pocket7.Reversed = True

# Sketch on YZ plane
sketch9 = doc.addObject("Sketcher::SketchObject", "Sketch008")
body.addObject(sketch9)
sketch9.AttachmentSupport = (doc.YZ_Plane, [""])
sketch9.MapMode = "FlatFace"
sketch9.AttachmentOffset = App.Placement(V(0, 0, -29.8), App.Rotation())
sketch9.addGeometry(Part.LineSegment(V(2.771281, -1.6, 0), V(2.771281, 1.6, 0)), False)
sketch9.addGeometry(Part.LineSegment(V(2.771281, 1.6, 0), V(0, 3.2, 0)), False)
sketch9.addGeometry(Part.LineSegment(V(0, 3.2, 0), V(-2.771281, 1.6, 0)), False)
sketch9.addGeometry(Part.LineSegment(V(-2.771281, 1.6, 0), V(-2.771281, -1.6, 0)), False)
sketch9.addGeometry(Part.LineSegment(V(-2.771281, -1.6, 0), V(0, -3.2, 0)), False)
sketch9.addGeometry(Part.LineSegment(V(0, -3.2, 0), V(2.771281, -1.6, 0)), False)
sketch9.addConstraint(Sketcher.Constraint("Coincident", 0, 2, 1, 1))
sketch9.addConstraint(Sketcher.Constraint("Coincident", 1, 2, 2, 1))
sketch9.addConstraint(Sketcher.Constraint("Coincident", 2, 2, 3, 1))
sketch9.addConstraint(Sketcher.Constraint("Coincident", 3, 2, 4, 1))
sketch9.addConstraint(Sketcher.Constraint("Coincident", 4, 2, 5, 1))
sketch9.addConstraint(Sketcher.Constraint("Coincident", 5, 2, 0, 1))
sketch9.addConstraint(Sketcher.Constraint("Vertical", 0))
sketch9.addConstraint(Sketcher.Constraint("Vertical", 3))
sketch9.addConstraint(Sketcher.Constraint("Symmetric", 0, 2, 3, 2, -1, 1))
sketch9.addConstraint(Sketcher.Constraint("Symmetric", 1, 2, 4, 2, -1, 1))
sketch9.addConstraint(Sketcher.Constraint("PointOnObject", 1, 2, -2))
sketch9.addConstraint(Sketcher.Constraint("Parallel", 2, 5))
sketch9.addConstraint(Sketcher.Constraint("Horizontal", 0, 2, 2, 2))
sketch9.addConstraint(Sketcher.Constraint("Angle", 1, Q("149.999997 deg")))
sketch9.addConstraint(Sketcher.Constraint("DistanceY", 0, 1, 0, 2, 3.2))
sketch9.addConstraint(Sketcher.Constraint("Distance", 1, 3.2))
pocket8 = doc.addObject("PartDesign::Pocket", "Pocket007")
body.addObject(pocket8)
pocket8.Profile = sketch9
pocket8.Length = 3

# Sketch on XZ plane
sketch10 = doc.addObject("Sketcher::SketchObject", "Sketch009")
body.addObject(sketch10)
sketch10.AttachmentSupport = (doc.XZ_Plane, [""])
sketch10.MapMode = "FlatFace"
sketch10.AttachmentOffset = App.Placement(V(0, 0, -4), App.Rotation())
sketch10.addGeometry(Part.LineSegment(V(46.7, 0, 0), V(46.7, -4, 0)), False)
sketch10.addGeometry(Part.LineSegment(V(46.7, -4, 0), V(61.5, -4, 0)), False)
sketch10.addGeometry(Part.LineSegment(V(61.5, -4, 0), V(61.5, 0, 0)), False)
sketch10.addGeometry(Part.LineSegment(V(61.5, 0, 0), V(46.7, 0, 0)), False)
sketch10.addGeometry(Part.LineSegment(V(-29.8, 0, 0), V(-29.8, -4, 0)), False)
sketch10.addGeometry(Part.LineSegment(V(-29.8, -4, 0), V(29.8, -4, 0)), False)
sketch10.addGeometry(Part.LineSegment(V(29.8, -4, 0), V(29.8, 0, 0)), False)
sketch10.addGeometry(Part.LineSegment(V(29.8, 0, 0), V(-29.8, 0, 0)), False)
sketch10.addGeometry(Part.LineSegment(V(-61.5, 0, 0), V(-61.5, -4, 0)), False)
sketch10.addGeometry(Part.LineSegment(V(-61.5, -4, 0), V(-46.7, -4, 0)), False)
sketch10.addGeometry(Part.LineSegment(V(-46.7, -4, 0), V(-46.7, 0, 0)), False)
sketch10.addGeometry(Part.LineSegment(V(-46.7, 0, 0), V(-61.5, 0, 0)), False)
sketch10.addConstraint(Sketcher.Constraint("Coincident", 0, 2, 1, 1))
sketch10.addConstraint(Sketcher.Constraint("Coincident", 1, 2, 2, 1))
sketch10.addConstraint(Sketcher.Constraint("Coincident", 2, 2, 3, 1))
sketch10.addConstraint(Sketcher.Constraint("Coincident", 3, 2, 0, 1))
sketch10.addConstraint(Sketcher.Constraint("Coincident", 4, 2, 5, 1))
sketch10.addConstraint(Sketcher.Constraint("Coincident", 5, 2, 6, 1))
sketch10.addConstraint(Sketcher.Constraint("Coincident", 6, 2, 7, 1))
sketch10.addConstraint(Sketcher.Constraint("Coincident", 7, 2, 4, 1))
sketch10.addConstraint(Sketcher.Constraint("Coincident", 8, 2, 9, 1))
sketch10.addConstraint(Sketcher.Constraint("Coincident", 9, 2, 10, 1))
sketch10.addConstraint(Sketcher.Constraint("Coincident", 10, 2, 11, 1))
sketch10.addConstraint(Sketcher.Constraint("Coincident", 11, 2, 8, 1))
sketch10.addConstraint(Sketcher.Constraint("Vertical", 0))
sketch10.addConstraint(Sketcher.Constraint("Horizontal", 1))
sketch10.addConstraint(Sketcher.Constraint("Vertical", 2))
sketch10.addConstraint(Sketcher.Constraint("Horizontal", 3))
sketch10.addConstraint(Sketcher.Constraint("Vertical", 4))
sketch10.addConstraint(Sketcher.Constraint("Horizontal", 5))
sketch10.addConstraint(Sketcher.Constraint("Vertical", 6))
sketch10.addConstraint(Sketcher.Constraint("Horizontal", 7))
sketch10.addConstraint(Sketcher.Constraint("Vertical", 8))
sketch10.addConstraint(Sketcher.Constraint("Horizontal", 9))
sketch10.addConstraint(Sketcher.Constraint("Vertical", 10))
sketch10.addConstraint(Sketcher.Constraint("Horizontal", 11))
sketch10.addConstraint(Sketcher.Constraint("Symmetric", 6, 2, 7, 2, -1, 1))
sketch10.addConstraint(Sketcher.Constraint("Symmetric", 3, 2, 10, 2, -1, 1))
sketch10.addConstraint(Sketcher.Constraint("Symmetric", 1, 2, 8, 2, -2))
sketch10.addConstraint(Sketcher.Constraint("PointOnObject", 2, 2, -1))
sketch10.addConstraint(Sketcher.Constraint("Horizontal", 1, 2, 4, 2))
sketch10.addConstraint(Sketcher.Constraint("DistanceY", 0, 2, 0, 1, 4.0))
sketch10.addConstraint(Sketcher.Constraint("DistanceX", 1, 1, 1, 2, 14.8))
sketch10.addConstraint(Sketcher.Constraint("DistanceX", 5, 1, 5, 2, 59.6))
sketch10.addConstraint(Sketcher.Constraint("DistanceX", -1, 1, 0, 2, 46.7))
pocket9 = doc.addObject("PartDesign::Pocket", "Pocket008")
body.addObject(pocket9)
pocket9.Profile = sketch10
pocket9.Length = 0.4
doc.recompute()

chamfer = doc.addObject("PartDesign::Chamfer", "Chamfer")
body.addObject(chamfer)
chamfer.Base = (pocket9, edges_at(pocket9, [
    (35.1, 75.8, -6.25),
    (29.3, 75.8, -4.5),
    (23.5, 75.8, -6.25),
    (29.3, 75.8, -8),
    (6.8, 75.8, -7),
    (-8, 75.8, -7),
    (-0.6, 75.8, -3),
    (-0.6, 75.8, -11),
]))
chamfer.Size = 1

doc.recompute()
